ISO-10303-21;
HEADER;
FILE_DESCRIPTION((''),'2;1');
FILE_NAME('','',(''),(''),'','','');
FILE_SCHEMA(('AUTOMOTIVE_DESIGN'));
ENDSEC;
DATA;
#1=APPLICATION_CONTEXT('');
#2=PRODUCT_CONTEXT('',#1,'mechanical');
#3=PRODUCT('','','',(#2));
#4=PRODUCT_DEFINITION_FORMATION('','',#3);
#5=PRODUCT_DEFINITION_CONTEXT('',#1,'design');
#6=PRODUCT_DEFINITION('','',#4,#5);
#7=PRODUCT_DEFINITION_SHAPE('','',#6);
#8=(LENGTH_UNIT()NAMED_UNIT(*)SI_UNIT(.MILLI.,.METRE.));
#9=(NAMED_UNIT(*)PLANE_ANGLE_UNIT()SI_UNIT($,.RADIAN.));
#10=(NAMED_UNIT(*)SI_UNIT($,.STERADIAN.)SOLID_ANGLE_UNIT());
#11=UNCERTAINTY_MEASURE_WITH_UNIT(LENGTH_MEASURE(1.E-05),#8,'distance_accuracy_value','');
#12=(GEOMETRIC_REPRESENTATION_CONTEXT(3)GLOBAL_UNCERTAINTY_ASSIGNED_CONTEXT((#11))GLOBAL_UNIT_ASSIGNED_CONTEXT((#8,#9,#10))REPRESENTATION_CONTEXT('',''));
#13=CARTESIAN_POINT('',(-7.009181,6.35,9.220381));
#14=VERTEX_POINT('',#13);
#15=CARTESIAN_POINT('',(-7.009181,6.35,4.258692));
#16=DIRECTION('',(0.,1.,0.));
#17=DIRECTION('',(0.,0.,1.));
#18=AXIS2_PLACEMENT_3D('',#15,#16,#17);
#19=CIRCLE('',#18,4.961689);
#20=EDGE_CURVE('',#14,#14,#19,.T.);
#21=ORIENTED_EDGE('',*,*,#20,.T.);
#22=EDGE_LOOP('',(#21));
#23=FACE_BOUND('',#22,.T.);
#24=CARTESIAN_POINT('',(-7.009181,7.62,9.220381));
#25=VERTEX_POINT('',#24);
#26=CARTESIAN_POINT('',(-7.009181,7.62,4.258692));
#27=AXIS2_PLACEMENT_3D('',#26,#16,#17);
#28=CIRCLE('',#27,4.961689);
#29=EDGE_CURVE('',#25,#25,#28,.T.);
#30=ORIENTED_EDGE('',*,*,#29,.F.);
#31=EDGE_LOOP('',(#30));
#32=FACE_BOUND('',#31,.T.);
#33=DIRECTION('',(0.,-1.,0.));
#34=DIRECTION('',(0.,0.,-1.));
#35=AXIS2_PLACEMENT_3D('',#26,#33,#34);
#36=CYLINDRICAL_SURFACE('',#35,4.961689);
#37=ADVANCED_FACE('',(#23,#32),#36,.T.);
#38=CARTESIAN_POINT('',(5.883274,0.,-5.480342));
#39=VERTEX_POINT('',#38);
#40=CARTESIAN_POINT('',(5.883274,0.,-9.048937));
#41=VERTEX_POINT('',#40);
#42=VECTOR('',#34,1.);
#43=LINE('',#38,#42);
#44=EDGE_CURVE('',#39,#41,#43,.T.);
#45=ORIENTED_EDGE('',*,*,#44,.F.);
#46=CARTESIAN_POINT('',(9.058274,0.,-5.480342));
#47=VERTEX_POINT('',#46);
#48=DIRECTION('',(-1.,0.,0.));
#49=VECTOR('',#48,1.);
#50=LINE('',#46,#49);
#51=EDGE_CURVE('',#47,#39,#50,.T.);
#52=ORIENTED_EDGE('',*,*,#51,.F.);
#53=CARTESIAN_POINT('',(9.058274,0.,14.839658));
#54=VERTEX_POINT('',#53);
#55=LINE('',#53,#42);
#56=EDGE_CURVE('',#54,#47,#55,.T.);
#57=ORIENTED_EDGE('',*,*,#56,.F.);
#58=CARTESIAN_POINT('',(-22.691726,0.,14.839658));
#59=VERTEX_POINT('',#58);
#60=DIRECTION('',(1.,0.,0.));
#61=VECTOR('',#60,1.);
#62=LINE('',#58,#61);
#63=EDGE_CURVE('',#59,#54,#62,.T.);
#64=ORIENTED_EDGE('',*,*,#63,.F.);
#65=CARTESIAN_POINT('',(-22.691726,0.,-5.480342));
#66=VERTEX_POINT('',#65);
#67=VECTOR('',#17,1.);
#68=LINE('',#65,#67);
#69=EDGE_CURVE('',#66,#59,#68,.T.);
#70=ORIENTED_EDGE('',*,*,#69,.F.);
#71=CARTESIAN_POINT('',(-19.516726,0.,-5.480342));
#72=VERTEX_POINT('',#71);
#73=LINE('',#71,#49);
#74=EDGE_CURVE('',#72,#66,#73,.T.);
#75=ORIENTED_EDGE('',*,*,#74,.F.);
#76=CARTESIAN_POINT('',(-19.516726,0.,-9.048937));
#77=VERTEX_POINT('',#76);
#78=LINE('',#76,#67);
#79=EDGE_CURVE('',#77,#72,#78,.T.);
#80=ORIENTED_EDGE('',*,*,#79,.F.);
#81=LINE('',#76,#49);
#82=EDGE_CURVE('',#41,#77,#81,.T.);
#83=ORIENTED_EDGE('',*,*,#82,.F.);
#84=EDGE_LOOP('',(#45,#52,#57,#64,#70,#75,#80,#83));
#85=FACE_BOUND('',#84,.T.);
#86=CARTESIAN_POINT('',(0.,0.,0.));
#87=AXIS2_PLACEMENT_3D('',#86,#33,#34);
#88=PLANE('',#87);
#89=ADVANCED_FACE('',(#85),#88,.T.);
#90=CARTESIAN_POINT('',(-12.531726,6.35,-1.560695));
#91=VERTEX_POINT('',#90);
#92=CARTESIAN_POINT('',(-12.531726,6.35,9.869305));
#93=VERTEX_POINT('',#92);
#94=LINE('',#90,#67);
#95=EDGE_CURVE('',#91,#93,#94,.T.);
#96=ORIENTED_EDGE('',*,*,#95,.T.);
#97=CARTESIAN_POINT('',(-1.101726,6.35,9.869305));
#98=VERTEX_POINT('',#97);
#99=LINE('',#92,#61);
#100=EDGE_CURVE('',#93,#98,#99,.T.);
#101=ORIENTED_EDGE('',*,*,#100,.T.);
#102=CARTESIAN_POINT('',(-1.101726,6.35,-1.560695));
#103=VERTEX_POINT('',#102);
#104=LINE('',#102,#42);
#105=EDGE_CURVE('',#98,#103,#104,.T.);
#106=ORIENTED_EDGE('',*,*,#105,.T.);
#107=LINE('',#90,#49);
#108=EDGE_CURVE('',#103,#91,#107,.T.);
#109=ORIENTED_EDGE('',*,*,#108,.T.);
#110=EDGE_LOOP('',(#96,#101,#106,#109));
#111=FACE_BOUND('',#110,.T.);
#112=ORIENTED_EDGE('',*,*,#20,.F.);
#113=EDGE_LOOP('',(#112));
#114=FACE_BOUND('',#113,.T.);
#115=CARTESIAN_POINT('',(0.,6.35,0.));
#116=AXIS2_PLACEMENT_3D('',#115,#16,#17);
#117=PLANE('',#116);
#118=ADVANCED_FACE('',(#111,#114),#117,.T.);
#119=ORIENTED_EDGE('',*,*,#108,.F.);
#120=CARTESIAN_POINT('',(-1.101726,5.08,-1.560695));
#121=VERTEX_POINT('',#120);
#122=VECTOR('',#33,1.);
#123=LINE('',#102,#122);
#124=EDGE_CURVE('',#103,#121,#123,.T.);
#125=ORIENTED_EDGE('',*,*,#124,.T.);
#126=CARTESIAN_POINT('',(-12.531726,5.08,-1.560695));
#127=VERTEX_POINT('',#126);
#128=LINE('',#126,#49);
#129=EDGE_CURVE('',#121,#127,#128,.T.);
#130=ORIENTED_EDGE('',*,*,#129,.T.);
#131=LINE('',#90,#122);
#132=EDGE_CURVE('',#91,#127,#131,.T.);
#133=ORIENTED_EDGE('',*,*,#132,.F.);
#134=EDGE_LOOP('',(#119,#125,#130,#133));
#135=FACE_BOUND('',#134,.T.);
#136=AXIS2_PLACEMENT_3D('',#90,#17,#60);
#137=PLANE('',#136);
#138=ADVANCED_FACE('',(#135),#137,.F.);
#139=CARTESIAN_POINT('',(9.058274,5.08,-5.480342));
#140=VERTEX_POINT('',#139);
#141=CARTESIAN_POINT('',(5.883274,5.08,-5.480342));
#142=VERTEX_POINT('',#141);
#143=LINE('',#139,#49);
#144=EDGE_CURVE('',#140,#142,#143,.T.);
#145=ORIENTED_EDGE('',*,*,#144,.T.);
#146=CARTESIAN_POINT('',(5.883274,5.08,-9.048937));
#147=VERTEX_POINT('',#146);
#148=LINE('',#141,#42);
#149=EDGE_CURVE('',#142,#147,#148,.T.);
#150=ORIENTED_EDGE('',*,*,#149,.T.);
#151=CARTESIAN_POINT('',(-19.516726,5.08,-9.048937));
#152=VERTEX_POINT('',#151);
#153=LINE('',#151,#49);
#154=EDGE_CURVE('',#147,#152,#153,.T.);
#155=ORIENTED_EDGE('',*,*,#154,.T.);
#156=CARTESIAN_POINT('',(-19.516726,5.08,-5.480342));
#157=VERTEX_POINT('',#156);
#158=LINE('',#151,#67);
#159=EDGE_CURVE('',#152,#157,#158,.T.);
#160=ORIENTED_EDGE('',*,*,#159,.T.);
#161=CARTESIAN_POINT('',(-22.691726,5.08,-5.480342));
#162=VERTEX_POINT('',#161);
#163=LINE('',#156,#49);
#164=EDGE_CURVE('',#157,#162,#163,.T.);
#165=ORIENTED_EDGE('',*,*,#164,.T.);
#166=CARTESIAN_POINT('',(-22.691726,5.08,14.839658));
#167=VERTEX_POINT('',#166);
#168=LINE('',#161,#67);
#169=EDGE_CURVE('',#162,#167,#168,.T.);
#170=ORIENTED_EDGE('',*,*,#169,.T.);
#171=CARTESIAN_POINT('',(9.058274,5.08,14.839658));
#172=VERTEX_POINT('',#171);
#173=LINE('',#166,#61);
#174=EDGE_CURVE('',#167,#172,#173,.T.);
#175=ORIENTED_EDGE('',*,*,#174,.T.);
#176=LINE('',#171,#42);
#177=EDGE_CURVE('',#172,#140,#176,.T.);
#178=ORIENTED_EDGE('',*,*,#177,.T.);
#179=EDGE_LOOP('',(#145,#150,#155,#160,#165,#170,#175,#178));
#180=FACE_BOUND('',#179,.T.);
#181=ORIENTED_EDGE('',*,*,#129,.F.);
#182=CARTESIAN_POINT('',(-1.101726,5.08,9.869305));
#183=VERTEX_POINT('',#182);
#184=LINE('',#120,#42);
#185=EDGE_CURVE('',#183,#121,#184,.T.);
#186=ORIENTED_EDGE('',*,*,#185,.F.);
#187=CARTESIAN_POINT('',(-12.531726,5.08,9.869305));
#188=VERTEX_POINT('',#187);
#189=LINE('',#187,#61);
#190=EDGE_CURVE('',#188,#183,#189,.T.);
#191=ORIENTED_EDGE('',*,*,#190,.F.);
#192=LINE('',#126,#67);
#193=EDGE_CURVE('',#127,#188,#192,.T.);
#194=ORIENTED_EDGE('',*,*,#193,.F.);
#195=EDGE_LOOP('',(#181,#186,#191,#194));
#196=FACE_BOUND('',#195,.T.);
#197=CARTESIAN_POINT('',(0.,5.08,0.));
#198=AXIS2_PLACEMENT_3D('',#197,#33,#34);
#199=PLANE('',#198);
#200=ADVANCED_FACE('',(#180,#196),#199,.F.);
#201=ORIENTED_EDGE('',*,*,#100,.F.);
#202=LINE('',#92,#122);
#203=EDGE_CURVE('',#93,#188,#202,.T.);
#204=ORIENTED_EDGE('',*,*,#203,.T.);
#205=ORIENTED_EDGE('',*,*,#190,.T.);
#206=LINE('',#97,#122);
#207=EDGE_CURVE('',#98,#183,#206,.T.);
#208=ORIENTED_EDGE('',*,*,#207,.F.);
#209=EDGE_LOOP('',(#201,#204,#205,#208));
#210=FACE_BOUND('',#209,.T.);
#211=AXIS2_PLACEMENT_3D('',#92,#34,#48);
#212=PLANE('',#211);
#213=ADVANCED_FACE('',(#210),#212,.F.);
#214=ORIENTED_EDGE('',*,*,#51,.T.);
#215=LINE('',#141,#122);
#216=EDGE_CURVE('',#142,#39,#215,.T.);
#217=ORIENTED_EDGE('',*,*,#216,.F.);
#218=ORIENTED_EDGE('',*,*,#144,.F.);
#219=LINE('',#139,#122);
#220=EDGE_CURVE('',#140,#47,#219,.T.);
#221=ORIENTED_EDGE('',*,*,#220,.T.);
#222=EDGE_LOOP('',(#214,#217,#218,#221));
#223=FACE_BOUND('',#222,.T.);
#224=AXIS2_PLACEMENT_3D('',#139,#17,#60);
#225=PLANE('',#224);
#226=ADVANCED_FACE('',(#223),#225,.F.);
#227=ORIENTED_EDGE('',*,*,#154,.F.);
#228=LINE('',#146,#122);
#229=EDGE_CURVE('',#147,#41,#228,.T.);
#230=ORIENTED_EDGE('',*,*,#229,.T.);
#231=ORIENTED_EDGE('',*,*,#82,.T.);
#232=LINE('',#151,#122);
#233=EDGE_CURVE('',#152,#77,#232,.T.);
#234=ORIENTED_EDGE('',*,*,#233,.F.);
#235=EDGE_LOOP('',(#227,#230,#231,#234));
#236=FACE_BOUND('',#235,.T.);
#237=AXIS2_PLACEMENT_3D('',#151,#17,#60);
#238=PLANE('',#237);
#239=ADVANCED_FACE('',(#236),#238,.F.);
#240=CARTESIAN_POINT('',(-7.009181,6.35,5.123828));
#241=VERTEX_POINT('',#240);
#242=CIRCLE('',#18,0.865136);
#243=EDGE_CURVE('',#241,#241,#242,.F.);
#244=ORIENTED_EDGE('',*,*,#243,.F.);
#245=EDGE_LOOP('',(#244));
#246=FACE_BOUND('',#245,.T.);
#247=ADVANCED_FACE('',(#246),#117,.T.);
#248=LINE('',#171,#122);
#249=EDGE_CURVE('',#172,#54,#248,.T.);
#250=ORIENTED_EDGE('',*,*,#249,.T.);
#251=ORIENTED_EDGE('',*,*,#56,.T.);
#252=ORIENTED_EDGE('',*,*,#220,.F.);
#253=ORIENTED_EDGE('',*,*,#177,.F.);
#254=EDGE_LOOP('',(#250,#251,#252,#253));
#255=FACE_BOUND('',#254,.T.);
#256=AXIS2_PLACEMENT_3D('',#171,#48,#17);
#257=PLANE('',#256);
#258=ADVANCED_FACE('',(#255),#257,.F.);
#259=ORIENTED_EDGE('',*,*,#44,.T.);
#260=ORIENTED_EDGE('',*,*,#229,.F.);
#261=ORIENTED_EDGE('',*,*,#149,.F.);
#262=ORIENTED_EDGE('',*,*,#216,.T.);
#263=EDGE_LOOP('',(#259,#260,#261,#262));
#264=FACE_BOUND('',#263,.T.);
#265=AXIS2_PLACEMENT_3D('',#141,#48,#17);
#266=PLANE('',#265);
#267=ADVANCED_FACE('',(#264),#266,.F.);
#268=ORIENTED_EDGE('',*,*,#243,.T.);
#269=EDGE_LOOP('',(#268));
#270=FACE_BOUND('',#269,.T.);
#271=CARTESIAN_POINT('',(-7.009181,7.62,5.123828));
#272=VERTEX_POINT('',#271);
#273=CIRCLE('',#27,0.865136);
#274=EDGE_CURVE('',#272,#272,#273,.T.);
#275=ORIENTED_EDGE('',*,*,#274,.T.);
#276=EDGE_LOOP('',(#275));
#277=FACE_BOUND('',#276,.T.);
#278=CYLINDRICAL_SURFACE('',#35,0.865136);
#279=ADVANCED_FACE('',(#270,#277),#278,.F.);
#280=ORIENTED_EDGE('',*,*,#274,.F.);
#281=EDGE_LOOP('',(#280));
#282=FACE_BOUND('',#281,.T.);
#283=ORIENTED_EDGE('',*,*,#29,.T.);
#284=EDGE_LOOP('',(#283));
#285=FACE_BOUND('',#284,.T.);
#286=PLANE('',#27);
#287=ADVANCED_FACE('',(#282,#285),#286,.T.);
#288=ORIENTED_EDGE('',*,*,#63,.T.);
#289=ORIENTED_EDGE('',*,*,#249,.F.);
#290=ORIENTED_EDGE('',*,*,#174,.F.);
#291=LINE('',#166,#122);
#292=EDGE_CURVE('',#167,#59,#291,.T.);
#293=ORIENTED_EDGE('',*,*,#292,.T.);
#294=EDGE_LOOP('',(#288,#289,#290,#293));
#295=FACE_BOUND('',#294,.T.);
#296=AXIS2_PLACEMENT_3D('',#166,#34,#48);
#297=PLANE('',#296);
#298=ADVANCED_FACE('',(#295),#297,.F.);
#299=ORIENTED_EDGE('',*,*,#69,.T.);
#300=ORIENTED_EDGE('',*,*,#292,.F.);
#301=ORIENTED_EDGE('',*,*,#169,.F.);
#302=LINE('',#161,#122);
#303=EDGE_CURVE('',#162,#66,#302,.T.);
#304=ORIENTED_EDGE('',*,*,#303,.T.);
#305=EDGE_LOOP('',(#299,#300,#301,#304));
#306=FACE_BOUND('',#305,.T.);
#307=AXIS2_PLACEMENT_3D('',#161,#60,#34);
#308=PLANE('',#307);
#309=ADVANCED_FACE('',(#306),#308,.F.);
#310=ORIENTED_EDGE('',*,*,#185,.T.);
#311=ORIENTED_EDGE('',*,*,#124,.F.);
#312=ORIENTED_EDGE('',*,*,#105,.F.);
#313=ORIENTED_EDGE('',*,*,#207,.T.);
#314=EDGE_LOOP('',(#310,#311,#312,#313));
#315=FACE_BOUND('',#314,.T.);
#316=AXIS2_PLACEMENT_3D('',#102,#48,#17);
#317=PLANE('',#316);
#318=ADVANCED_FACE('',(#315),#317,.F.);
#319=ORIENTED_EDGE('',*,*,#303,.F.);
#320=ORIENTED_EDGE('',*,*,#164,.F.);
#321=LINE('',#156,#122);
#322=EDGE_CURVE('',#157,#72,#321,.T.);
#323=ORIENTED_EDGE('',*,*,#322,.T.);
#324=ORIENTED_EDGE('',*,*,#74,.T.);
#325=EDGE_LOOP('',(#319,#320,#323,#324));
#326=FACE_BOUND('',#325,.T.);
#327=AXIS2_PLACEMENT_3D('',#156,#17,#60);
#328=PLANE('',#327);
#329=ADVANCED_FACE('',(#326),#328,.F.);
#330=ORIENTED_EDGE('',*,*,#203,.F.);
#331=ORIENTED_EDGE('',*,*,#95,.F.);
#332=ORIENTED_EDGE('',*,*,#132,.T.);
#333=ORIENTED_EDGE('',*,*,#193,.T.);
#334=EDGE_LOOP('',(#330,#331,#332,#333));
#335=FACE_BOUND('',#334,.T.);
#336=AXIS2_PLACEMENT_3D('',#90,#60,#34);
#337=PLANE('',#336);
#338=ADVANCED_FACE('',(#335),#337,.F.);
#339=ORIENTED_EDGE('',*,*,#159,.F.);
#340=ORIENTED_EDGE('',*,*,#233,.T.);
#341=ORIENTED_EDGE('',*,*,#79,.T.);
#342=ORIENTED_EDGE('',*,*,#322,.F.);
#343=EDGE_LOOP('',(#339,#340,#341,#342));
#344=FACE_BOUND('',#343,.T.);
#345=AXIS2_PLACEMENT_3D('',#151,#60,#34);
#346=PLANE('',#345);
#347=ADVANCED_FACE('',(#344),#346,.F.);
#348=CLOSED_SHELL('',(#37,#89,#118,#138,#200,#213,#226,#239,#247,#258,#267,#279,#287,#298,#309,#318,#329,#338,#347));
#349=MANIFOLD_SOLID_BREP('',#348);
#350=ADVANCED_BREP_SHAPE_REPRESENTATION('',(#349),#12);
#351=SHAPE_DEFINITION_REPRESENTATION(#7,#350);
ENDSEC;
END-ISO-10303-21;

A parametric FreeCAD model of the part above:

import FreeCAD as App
import Part
import Sketcher
Q = App.Units.Quantity


def add_polygon(sketch, points):
    """Adds a closed chain of lines whose ends are joined by coincident constraints."""
    first, n = sketch.GeometryCount, len(points)
    for a, b in zip(points, points[1:] + points[:1]):
        sketch.addGeometry(Part.LineSegment(App.Vector(*a, 0), App.Vector(*b, 0)), False)
    for i in range(n):
        sketch.addConstraint(Sketcher.Constraint("Coincident", first + i, 2, first + (i + 1) % n, 1))

doc = App.newDocument("Part")
body = doc.addObject("PartDesign::Body", "Body")

sketch1 = doc.addObject("Sketcher::SketchObject", "Sketch")
body.addObject(sketch1)
sketch1.AttachmentSupport = (doc.XZ_Plane, [""])
sketch1.MapMode = "FlatFace"
add_polygon(sketch1, [(5.9, -9), (-19.5, -9), (-19.5, -5.5), (-22.7, -5.5), (-22.7, 14.8), (9.1, 14.8), (9.1, -5.5), (5.9, -5.5)])
sketch1.addConstraint([
    Sketcher.Constraint("Horizontal", 0),
    Sketcher.Constraint("Vertical", 1),
    Sketcher.Constraint("Horizontal", 2),
    Sketcher.Constraint("Vertical", 3),
    Sketcher.Constraint("Horizontal", 4),
    Sketcher.Constraint("Vertical", 5),
    Sketcher.Constraint("Horizontal", 6),
    Sketcher.Constraint("Vertical", 7),
    Sketcher.Constraint("Horizontal", 2, 2, 5, 2),
    Sketcher.Constraint("Equal", 2, 6),
    Sketcher.Constraint("DistanceX", 0, 2, 0, 1, Q("1 in")),
    Sketcher.Constraint("DistanceY", 3, 1, 3, 2, Q("0.8 in")),
    Sketcher.Constraint("DistanceX", 4, 1, 4, 2, Q("1.25 in")),
    Sketcher.Constraint("DistanceY", 1, 1, 1, 2, Q("3.568595 mm")),
    Sketcher.Constraint("DistanceX", 0, 2, -1, 1, Q("19.516726 mm")),
    Sketcher.Constraint("DistanceY", 0, 2, -1, 1, Q("9.048937 mm")),
])
pad1 = doc.addObject("PartDesign::Pad", "Pad")
body.addObject(pad1)
pad1.Profile = sketch1
pad1.Length = Q("0.2 in")
pad1.Reversed = True

sketch2 = doc.addObject("Sketcher::SketchObject", "Sketch001")
body.addObject(sketch2)
sketch2.AttachmentSupport = (doc.XZ_Plane, [""])
sketch2.MapMode = "FlatFace"
sketch2.AttachmentOffset = App.Placement(App.Vector(0, 0, -0.2 * 25.4), App.Rotation())
add_polygon(sketch2, [(-13, -2), (-13, 10), (-1, 10), (-1, -2)])
sketch2.addConstraint([
    Sketcher.Constraint("Vertical", 0),
    Sketcher.Constraint("Horizontal", 1),
    Sketcher.Constraint("Vertical", 2),
    Sketcher.Constraint("Horizontal", 3),
    Sketcher.Constraint("Equal", 3, 0),
    Sketcher.Constraint("DistanceX", 1, 1, 1, 2, Q("0.45 in")),
    Sketcher.Constraint("DistanceX", 0, 2, -1, 1, Q("12.531726 mm")),
    Sketcher.Constraint("DistanceY", -1, 1, 0, 2, Q("9.869305 mm")),
])
pad2 = doc.addObject("PartDesign::Pad", "Pad001")
body.addObject(pad2)
pad2.Profile = sketch2
pad2.Length = Q("0.05 in")
pad2.Reversed = True

sketch3 = doc.addObject("Sketcher::SketchObject", "Sketch002")
body.addObject(sketch3)
sketch3.AttachmentSupport = (doc.XZ_Plane, [""])
sketch3.MapMode = "FlatFace"
sketch3.AttachmentOffset = App.Placement(App.Vector(0, 0, -0.25 * 25.4), App.Rotation())
sketch3.addGeometry([
    Part.Circle(App.Vector(-7, 4.3, 0), App.Vector(0, 0, 1), 5),
    Part.Circle(App.Vector(-7, 4.3, 0), App.Vector(0, 0, 1), 0.9),
], False)
sketch3.addConstraint([
    Sketcher.Constraint("Coincident", 1, 3, 0, 3),
    Sketcher.Constraint("Diameter", 1, Q("1.730272 mm")),
    Sketcher.Constraint("Diameter", 0, Q("9.923378 mm")),
    Sketcher.Constraint("DistanceX", 0, 3, -1, 1, Q("7.009181 mm")),
    Sketcher.Constraint("DistanceY", -1, 1, 0, 3, Q("4.258692 mm")),
])
pad3 = doc.addObject("PartDesign::Pad", "Pad002")
body.addObject(pad3)
pad3.Profile = sketch3
pad3.Length = Q("0.05 in")
pad3.Reversed = True

doc.recompute()
